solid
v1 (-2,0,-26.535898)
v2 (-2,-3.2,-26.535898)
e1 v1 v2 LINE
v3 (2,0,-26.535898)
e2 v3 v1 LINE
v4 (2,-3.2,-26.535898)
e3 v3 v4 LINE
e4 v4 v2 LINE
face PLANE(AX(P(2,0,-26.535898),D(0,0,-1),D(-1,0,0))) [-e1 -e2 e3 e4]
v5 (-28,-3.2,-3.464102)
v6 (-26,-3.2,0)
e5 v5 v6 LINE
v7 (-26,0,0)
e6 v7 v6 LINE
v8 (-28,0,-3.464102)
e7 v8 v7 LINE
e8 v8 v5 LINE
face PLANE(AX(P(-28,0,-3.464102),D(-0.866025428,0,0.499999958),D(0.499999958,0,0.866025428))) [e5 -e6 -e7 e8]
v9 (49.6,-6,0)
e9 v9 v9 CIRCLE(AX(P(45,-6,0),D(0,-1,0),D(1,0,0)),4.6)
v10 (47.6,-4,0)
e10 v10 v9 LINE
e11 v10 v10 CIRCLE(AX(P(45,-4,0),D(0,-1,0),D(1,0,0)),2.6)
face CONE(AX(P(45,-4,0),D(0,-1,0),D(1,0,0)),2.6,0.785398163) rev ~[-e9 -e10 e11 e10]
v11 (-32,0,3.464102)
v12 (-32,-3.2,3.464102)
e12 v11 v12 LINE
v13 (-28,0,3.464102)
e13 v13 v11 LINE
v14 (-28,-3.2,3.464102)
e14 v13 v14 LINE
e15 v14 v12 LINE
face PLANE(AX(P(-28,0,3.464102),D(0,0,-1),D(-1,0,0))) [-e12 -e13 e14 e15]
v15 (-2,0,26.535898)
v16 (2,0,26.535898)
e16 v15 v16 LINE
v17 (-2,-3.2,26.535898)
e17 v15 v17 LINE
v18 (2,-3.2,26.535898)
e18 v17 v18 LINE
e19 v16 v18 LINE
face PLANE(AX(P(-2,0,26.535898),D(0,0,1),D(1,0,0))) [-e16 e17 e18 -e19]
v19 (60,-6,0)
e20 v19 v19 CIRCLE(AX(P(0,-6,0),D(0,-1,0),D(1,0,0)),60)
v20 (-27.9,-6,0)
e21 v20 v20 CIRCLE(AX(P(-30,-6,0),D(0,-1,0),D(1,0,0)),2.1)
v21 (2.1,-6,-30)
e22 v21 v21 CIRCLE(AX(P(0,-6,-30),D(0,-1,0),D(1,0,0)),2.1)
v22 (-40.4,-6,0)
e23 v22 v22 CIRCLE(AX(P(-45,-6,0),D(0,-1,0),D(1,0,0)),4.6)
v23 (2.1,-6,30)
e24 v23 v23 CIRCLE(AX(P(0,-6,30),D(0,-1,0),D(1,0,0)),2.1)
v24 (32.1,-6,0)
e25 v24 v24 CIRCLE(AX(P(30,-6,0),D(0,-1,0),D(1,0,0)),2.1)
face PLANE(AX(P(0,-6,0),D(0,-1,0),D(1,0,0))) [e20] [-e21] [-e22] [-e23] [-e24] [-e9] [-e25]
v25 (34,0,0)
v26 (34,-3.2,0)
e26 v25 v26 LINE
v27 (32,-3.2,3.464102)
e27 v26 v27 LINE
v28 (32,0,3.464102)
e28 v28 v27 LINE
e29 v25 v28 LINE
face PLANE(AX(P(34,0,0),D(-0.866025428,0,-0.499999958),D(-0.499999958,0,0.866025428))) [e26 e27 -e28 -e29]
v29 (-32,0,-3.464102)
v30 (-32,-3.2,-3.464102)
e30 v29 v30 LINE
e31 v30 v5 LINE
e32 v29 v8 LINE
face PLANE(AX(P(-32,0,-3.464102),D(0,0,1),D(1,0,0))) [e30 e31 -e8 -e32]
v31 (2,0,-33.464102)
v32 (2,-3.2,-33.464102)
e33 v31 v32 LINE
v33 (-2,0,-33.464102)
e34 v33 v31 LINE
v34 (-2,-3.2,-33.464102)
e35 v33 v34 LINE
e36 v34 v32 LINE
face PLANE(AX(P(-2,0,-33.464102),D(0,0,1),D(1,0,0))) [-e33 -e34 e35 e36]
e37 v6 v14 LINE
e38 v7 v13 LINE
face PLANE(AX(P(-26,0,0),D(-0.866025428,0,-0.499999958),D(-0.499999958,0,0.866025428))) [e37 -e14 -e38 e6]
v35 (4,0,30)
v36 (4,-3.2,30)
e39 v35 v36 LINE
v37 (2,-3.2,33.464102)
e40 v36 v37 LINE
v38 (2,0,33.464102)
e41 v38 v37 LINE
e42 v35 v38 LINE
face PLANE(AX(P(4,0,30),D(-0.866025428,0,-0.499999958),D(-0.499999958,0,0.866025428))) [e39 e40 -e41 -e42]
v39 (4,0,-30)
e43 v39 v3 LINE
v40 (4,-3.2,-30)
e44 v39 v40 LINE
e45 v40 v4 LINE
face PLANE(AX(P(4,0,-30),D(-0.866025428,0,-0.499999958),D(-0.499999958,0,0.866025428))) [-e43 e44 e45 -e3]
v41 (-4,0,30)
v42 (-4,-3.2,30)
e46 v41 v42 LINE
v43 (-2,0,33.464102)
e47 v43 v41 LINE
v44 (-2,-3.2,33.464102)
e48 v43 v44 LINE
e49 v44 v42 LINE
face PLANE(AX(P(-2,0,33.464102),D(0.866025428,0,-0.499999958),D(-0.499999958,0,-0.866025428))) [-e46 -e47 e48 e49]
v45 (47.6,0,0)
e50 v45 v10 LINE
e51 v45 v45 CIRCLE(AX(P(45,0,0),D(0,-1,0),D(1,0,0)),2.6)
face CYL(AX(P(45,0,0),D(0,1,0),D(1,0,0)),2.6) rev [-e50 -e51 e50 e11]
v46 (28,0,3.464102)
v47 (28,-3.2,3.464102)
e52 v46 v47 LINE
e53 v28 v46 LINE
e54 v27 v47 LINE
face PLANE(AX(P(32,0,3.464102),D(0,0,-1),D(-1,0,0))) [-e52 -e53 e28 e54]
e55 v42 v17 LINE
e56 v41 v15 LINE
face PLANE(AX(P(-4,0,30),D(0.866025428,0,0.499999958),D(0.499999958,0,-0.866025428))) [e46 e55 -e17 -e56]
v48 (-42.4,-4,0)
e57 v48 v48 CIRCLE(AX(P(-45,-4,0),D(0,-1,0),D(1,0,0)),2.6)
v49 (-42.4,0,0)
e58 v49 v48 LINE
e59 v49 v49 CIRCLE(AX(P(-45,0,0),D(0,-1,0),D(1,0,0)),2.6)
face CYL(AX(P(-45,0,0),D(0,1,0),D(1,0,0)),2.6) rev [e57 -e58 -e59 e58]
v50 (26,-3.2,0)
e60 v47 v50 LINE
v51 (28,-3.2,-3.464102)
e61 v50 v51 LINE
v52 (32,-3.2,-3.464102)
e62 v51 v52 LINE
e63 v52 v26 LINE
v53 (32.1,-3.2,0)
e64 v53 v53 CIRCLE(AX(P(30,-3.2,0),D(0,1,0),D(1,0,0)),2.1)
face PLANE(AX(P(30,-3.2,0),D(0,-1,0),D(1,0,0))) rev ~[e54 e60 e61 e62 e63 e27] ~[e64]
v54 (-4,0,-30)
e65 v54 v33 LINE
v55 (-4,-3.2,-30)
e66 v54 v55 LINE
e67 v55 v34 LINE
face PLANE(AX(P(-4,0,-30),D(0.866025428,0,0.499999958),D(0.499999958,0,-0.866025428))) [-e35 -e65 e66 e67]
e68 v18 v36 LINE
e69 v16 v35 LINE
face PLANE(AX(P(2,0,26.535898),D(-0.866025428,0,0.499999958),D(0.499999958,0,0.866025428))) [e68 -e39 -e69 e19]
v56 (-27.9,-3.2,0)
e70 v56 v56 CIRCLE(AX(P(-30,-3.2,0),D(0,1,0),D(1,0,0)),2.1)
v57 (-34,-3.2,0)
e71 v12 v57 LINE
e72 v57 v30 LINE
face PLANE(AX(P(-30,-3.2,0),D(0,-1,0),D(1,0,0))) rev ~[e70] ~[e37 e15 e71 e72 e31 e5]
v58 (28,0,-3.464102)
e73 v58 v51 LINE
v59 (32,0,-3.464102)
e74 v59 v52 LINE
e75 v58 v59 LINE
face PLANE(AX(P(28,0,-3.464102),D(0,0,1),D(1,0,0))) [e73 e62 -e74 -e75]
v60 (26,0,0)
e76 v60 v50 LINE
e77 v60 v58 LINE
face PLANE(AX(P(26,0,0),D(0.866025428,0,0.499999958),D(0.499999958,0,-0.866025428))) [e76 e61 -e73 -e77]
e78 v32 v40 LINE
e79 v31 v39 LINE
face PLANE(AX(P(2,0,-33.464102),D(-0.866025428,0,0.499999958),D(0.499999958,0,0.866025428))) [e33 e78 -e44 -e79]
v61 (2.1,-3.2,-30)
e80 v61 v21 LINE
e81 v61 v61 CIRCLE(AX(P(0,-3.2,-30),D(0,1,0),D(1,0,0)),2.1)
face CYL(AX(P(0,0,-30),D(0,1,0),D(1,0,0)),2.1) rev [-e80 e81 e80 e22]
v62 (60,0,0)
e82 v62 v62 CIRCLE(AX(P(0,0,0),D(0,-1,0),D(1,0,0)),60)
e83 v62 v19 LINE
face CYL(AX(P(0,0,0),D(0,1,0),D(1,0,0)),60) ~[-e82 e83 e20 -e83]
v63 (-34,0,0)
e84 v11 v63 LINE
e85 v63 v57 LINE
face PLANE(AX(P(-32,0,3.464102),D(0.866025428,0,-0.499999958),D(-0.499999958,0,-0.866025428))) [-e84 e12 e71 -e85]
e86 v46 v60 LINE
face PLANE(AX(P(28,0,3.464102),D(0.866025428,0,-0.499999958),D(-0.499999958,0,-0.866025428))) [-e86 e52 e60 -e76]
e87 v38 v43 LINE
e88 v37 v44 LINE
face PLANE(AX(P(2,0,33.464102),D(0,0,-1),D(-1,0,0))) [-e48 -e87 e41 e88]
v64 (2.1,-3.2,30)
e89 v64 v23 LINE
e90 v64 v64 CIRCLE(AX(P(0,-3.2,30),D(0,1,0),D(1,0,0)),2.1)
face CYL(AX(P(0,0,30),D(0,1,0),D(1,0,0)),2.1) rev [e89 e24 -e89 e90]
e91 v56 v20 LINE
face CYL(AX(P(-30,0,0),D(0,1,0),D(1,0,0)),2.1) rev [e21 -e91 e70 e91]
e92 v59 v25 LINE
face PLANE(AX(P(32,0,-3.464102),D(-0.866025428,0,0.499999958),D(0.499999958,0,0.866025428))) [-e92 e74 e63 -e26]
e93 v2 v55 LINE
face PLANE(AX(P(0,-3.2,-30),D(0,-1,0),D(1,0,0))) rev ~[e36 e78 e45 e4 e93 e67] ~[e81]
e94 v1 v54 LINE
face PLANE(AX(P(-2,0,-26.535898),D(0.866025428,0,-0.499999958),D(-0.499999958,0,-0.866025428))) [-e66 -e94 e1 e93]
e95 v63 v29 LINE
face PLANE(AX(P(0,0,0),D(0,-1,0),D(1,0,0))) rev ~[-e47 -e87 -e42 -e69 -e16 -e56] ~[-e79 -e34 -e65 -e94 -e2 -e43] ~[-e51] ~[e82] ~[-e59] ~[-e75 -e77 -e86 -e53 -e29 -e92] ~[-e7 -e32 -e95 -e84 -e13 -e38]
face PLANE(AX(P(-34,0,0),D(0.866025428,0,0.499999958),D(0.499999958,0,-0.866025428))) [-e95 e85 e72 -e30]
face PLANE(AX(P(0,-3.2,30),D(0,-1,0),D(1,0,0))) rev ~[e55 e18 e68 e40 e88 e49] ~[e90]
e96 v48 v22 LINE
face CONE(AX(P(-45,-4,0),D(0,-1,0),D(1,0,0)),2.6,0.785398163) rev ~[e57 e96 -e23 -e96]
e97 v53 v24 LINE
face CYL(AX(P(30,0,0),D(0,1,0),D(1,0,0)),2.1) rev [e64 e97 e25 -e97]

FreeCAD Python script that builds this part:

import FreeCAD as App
import Part
import Sketcher
from FreeCAD import Vector
Q = App.Units.Quantity


def edges_at(feature, points):
    """Names of the edges that pass closest to the given points."""
    edges = feature.Shape.Edges
    near = lambda p: min(range(len(edges)), key=lambda i: edges[i].distToShape(Part.Vertex(*p))[0])
    return sorted({f"Edge{near(p) + 1}" for p in points})

doc = App.newDocument("Part")
body = doc.addObject("PartDesign::Body", "Body")

# Sketch on XZ plane
sketch1 = body.newObject("Sketcher::SketchObject", "Sketch")
sketch1.AttachmentSupport = (doc.getObject("XZ_Plane"), [""])
sketch1.MapMode = "FlatFace"
sketch1.addGeometry(Part.Circle(Vector(0, 0, 0), Vector(0, 0, 1), 60), False)
sketch1.addGeometry(Part.Circle(Vector(0, -30, 0), Vector(0, 0, 1), 2.1), False)
sketch1.addGeometry(Part.Circle(Vector(-45, 0, 0), Vector(0, 0, 1), 2.6), False)
sketch1.addGeometry(Part.Circle(Vector(-30, 0, 0), Vector(0, 0, 1), 2.1), False)
sketch1.addGeometry(Part.Circle(Vector(30, 0, 0), Vector(0, 0, 1), 2.1), False)
sketch1.addGeometry(Part.Circle(Vector(45, 0, 0), Vector(0, 0, 1), 2.6), False)
sketch1.addGeometry(Part.Circle(Vector(0, 30, 0), Vector(0, 0, 1), 2.1), False)
sketch1.addConstraint(Sketcher.Constraint("Coincident", 0, 3, -1, 1))
sketch1.addConstraint(Sketcher.Constraint("Equal", 1, 3))
sketch1.addConstraint(Sketcher.Constraint("Equal", 3, 4))
sketch1.addConstraint(Sketcher.Constraint("Equal", 2, 5))
sketch1.addConstraint(Sketcher.Constraint("Equal", 4, 6))
sketch1.addConstraint(Sketcher.Constraint("Symmetric", 3, 3, 4, 3, -1, 1))
sketch1.addConstraint(Sketcher.Constraint("Symmetric", 2, 3, 5, 3, -1, 1))
sketch1.addConstraint(Sketcher.Constraint("Symmetric", 1, 3, 6, 3, -1, 1))
sketch1.addConstraint(Sketcher.Constraint("PointOnObject", 1, 3, -2))
sketch1.addConstraint(Sketcher.Constraint("PointOnObject", 2, 3, -1))
sketch1.addConstraint(Sketcher.Constraint("PointOnObject", 3, 3, -1))
sketch1.addConstraint(Sketcher.Constraint("Diameter", 0, Q("120 mm")))
sketch1.addConstraint(Sketcher.Constraint("Diameter", 1, Q("4.2 mm")))
sketch1.addConstraint(Sketcher.Constraint("Diameter", 2, Q("5.2 mm")))
sketch1.addConstraint(Sketcher.Constraint("DistanceY", 1, 3, -1, 1, Q("30 mm")))
sketch1.addConstraint(Sketcher.Constraint("DistanceX", 2, 3, -1, 1, Q("45 mm")))
sketch1.addConstraint(Sketcher.Constraint("DistanceX", 3, 3, -1, 1, Q("30 mm")))
pad1 = body.newObject("PartDesign::Pad", "Pad")
pad1.Profile = sketch1
pad1.Length = 6
doc.recompute()

chamfer = body.newObject("PartDesign::Chamfer", "Chamfer")
chamfer.Base = (pad1, edges_at(pad1, [(-47.6, -6, 0), (42.4, -6, 0)]))
chamfer.Size = 2

# Sketch on XZ plane
sketch2 = body.newObject("Sketcher::SketchObject", "Sketch001")
sketch2.AttachmentSupport = (doc.getObject("XZ_Plane"), [""])
sketch2.MapMode = "FlatFace"
sketch2.addGeometry(Part.LineSegment(Vector(2, 33.464102, 0), Vector(-2, 33.464102, 0)), False)
sketch2.addGeometry(Part.LineSegment(Vector(-2, 33.464102, 0), Vector(-4, 30, 0)), False)
sketch2.addGeometry(Part.LineSegment(Vector(-4, 30, 0), Vector(-2, 26.535898, 0)), False)
sketch2.addGeometry(Part.LineSegment(Vector(-2, 26.535898, 0), Vector(2, 26.535898, 0)), False)
sketch2.addGeometry(Part.LineSegment(Vector(2, 26.535898, 0), Vector(4, 30, 0)), False)
sketch2.addGeometry(Part.LineSegment(Vector(4, 30, 0), Vector(2, 33.464102, 0)), False)
sketch2.addGeometry(Part.LineSegment(Vector(32, 3.464102, 0), Vector(28, 3.464102, 0)), False)
sketch2.addGeometry(Part.LineSegment(Vector(28, 3.464102, 0), Vector(26, 0, 0)), False)
sketch2.addGeometry(Part.LineSegment(Vector(26, 0, 0), Vector(28, -3.464102, 0)), False)
sketch2.addGeometry(Part.LineSegment(Vector(28, -3.464102, 0), Vector(32, -3.464102, 0)), False)
sketch2.addGeometry(Part.LineSegment(Vector(32, -3.464102, 0), Vector(34, 0, 0)), False)
sketch2.addGeometry(Part.LineSegment(Vector(34, 0, 0), Vector(32, 3.464102, 0)), False)
sketch2.addGeometry(Part.LineSegment(Vector(2, -26.535898, 0), Vector(-2, -26.535898, 0)), False)
sketch2.addGeometry(Part.LineSegment(Vector(-2, -26.535898, 0), Vector(-4, -30, 0)), False)
sketch2.addGeometry(Part.LineSegment(Vector(-4, -30, 0), Vector(-2, -33.464102, 0)), False)
sketch2.addGeometry(Part.LineSegment(Vector(-2, -33.464102, 0), Vector(2, -33.464102, 0)), False)
sketch2.addGeometry(Part.LineSegment(Vector(2, -33.464102, 0), Vector(4, -30, 0)), False)
sketch2.addGeometry(Part.LineSegment(Vector(4, -30, 0), Vector(2, -26.535898, 0)), False)
sketch2.addGeometry(Part.LineSegment(Vector(-32, 3.464102, 0), Vector(-34, 0, 0)), False)
sketch2.addGeometry(Part.LineSegment(Vector(-34, 0, 0), Vector(-32, -3.464102, 0)), False)
sketch2.addGeometry(Part.LineSegment(Vector(-32, -3.464102, 0), Vector(-28, -3.464102, 0)), False)
sketch2.addGeometry(Part.LineSegment(Vector(-28, -3.464102, 0), Vector(-26, 0, 0)), False)
sketch2.addGeometry(Part.LineSegment(Vector(-26, 0, 0), Vector(-28, 3.464102, 0)), False)
sketch2.addGeometry(Part.LineSegment(Vector(-28, 3.464102, 0), Vector(-32, 3.464102, 0)), False)
sketch2.addConstraint(Sketcher.Constraint("Coincident", 0, 2, 1, 1))
sketch2.addConstraint(Sketcher.Constraint("Coincident", 1, 2, 2, 1))
sketch2.addConstraint(Sketcher.Constraint("Coincident", 2, 2, 3, 1))
sketch2.addConstraint(Sketcher.Constraint("Coincident", 3, 2, 4, 1))
sketch2.addConstraint(Sketcher.Constraint("Coincident", 4, 2, 5, 1))
sketch2.addConstraint(Sketcher.Constraint("Coincident", 5, 2, 0, 1))
sketch2.addConstraint(Sketcher.Constraint("Coincident", 6, 2, 7, 1))
sketch2.addConstraint(Sketcher.Constraint("Coincident", 7, 2, 8, 1))
sketch2.addConstraint(Sketcher.Constraint("Coincident", 8, 2, 9, 1))
sketch2.addConstraint(Sketcher.Constraint("Coincident", 9, 2, 10, 1))
sketch2.addConstraint(Sketcher.Constraint("Coincident", 10, 2, 11, 1))
sketch2.addConstraint(Sketcher.Constraint("Coincident", 11, 2, 6, 1))
sketch2.addConstraint(Sketcher.Constraint("Coincident", 12, 2, 13, 1))
sketch2.addConstraint(Sketcher.Constraint("Coincident", 13, 2, 14, 1))
sketch2.addConstraint(Sketcher.Constraint("Coincident", 14, 2, 15, 1))
sketch2.addConstraint(Sketcher.Constraint("Coincident", 15, 2, 16, 1))
sketch2.addConstraint(Sketcher.Constraint("Coincident", 16, 2, 17, 1))
sketch2.addConstraint(Sketcher.Constraint("Coincident", 17, 2, 12, 1))
sketch2.addConstraint(Sketcher.Constraint("Coincident", 18, 2, 19, 1))
sketch2.addConstraint(Sketcher.Constraint("Coincident", 19, 2, 20, 1))
sketch2.addConstraint(Sketcher.Constraint("Coincident", 20, 2, 21, 1))
sketch2.addConstraint(Sketcher.Constraint("Coincident", 21, 2, 22, 1))
sketch2.addConstraint(Sketcher.Constraint("Coincident", 22, 2, 23, 1))
sketch2.addConstraint(Sketcher.Constraint("Coincident", 23, 2, 18, 1))
sketch2.addConstraint(Sketcher.Constraint("Horizontal", 0))
sketch2.addConstraint(Sketcher.Constraint("Horizontal", 3))
sketch2.addConstraint(Sketcher.Constraint("Horizontal", 6))
sketch2.addConstraint(Sketcher.Constraint("Horizontal", 9))
sketch2.addConstraint(Sketcher.Constraint("Horizontal", 12))
sketch2.addConstraint(Sketcher.Constraint("Horizontal", 15))
sketch2.addConstraint(Sketcher.Constraint("Horizontal", 20))
sketch2.addConstraint(Sketcher.Constraint("Horizontal", 23))
sketch2.addConstraint(Sketcher.Constraint("Symmetric", 3, 2, 12, 2, -1, 1))
sketch2.addConstraint(Sketcher.Constraint("Symmetric", 4, 2, 13, 2, -1, 1))
sketch2.addConstraint(Sketcher.Constraint("Symmetric", 5, 2, 14, 2, -1, 1))
sketch2.addConstraint(Sketcher.Constraint("Symmetric", 1, 2, 16, 2, -1, 1))
sketch2.addConstraint(Sketcher.Constraint("Symmetric", 10, 2, 18, 2, -1, 1))
sketch2.addConstraint(Sketcher.Constraint("Symmetric", 11, 2, 19, 2, -1, 1))
sketch2.addConstraint(Sketcher.Constraint("Symmetric", 7, 2, 21, 2, -1, 1))
sketch2.addConstraint(Sketcher.Constraint("Symmetric", 8, 2, 22, 2, -1, 1))
sketch2.addConstraint(Sketcher.Constraint("Symmetric", 1, 2, 4, 2, -2))
sketch2.addConstraint(Sketcher.Constraint("Symmetric", 9, 2, 19, 2, -2))
sketch2.addConstraint(Sketcher.Constraint("PointOnObject", 7, 2, -1))
sketch2.addConstraint(Sketcher.Constraint("PointOnObject", 10, 2, -1))
sketch2.addConstraint(Sketcher.Constraint("Parallel", 1, 4))
sketch2.addConstraint(Sketcher.Constraint("Parallel", 2, 5))
sketch2.addConstraint(Sketcher.Constraint("Parallel", 4, 7))
sketch2.addConstraint(Sketcher.Constraint("Parallel", 5, 8))
sketch2.addConstraint(Sketcher.Constraint("Parallel", 7, 10))
sketch2.addConstraint(Sketcher.Constraint("Parallel", 8, 11))
sketch2.addConstraint(Sketcher.Constraint("Parallel", 13, 16))
sketch2.addConstraint(Sketcher.Constraint("Parallel", 14, 17))
sketch2.addConstraint(Sketcher.Constraint("Parallel", 16, 18))
sketch2.addConstraint(Sketcher.Constraint("Parallel", 18, 21))
sketch2.addConstraint(Sketcher.Constraint("Vertical", 0, 2, 2, 2))
sketch2.addConstraint(Sketcher.Constraint("Equal", 3, 6))
sketch2.addConstraint(Sketcher.Constraint("Equal", 5, 7))
sketch2.addConstraint(Sketcher.Constraint("DistanceX", 0, 2, 0, 1, Q("4 mm")))
sketch2.addConstraint(Sketcher.Constraint("Angle", 1, Q("-119.999997 deg")))
sketch2.addConstraint(Sketcher.Constraint("Distance", 1, Q("4 mm")))
sketch2.addConstraint(Sketcher.Constraint("DistanceY", -1, 1, 1, 2, Q("30 mm")))
sketch2.addConstraint(Sketcher.Constraint("DistanceX", -1, 1, 6, 2, Q("28 mm")))
pocket1 = body.newObject("PartDesign::Pocket", "Pocket")
pocket1.Profile = sketch2
pocket1.Length = 3.2
pocket1.Reversed = True

doc.recompute()
